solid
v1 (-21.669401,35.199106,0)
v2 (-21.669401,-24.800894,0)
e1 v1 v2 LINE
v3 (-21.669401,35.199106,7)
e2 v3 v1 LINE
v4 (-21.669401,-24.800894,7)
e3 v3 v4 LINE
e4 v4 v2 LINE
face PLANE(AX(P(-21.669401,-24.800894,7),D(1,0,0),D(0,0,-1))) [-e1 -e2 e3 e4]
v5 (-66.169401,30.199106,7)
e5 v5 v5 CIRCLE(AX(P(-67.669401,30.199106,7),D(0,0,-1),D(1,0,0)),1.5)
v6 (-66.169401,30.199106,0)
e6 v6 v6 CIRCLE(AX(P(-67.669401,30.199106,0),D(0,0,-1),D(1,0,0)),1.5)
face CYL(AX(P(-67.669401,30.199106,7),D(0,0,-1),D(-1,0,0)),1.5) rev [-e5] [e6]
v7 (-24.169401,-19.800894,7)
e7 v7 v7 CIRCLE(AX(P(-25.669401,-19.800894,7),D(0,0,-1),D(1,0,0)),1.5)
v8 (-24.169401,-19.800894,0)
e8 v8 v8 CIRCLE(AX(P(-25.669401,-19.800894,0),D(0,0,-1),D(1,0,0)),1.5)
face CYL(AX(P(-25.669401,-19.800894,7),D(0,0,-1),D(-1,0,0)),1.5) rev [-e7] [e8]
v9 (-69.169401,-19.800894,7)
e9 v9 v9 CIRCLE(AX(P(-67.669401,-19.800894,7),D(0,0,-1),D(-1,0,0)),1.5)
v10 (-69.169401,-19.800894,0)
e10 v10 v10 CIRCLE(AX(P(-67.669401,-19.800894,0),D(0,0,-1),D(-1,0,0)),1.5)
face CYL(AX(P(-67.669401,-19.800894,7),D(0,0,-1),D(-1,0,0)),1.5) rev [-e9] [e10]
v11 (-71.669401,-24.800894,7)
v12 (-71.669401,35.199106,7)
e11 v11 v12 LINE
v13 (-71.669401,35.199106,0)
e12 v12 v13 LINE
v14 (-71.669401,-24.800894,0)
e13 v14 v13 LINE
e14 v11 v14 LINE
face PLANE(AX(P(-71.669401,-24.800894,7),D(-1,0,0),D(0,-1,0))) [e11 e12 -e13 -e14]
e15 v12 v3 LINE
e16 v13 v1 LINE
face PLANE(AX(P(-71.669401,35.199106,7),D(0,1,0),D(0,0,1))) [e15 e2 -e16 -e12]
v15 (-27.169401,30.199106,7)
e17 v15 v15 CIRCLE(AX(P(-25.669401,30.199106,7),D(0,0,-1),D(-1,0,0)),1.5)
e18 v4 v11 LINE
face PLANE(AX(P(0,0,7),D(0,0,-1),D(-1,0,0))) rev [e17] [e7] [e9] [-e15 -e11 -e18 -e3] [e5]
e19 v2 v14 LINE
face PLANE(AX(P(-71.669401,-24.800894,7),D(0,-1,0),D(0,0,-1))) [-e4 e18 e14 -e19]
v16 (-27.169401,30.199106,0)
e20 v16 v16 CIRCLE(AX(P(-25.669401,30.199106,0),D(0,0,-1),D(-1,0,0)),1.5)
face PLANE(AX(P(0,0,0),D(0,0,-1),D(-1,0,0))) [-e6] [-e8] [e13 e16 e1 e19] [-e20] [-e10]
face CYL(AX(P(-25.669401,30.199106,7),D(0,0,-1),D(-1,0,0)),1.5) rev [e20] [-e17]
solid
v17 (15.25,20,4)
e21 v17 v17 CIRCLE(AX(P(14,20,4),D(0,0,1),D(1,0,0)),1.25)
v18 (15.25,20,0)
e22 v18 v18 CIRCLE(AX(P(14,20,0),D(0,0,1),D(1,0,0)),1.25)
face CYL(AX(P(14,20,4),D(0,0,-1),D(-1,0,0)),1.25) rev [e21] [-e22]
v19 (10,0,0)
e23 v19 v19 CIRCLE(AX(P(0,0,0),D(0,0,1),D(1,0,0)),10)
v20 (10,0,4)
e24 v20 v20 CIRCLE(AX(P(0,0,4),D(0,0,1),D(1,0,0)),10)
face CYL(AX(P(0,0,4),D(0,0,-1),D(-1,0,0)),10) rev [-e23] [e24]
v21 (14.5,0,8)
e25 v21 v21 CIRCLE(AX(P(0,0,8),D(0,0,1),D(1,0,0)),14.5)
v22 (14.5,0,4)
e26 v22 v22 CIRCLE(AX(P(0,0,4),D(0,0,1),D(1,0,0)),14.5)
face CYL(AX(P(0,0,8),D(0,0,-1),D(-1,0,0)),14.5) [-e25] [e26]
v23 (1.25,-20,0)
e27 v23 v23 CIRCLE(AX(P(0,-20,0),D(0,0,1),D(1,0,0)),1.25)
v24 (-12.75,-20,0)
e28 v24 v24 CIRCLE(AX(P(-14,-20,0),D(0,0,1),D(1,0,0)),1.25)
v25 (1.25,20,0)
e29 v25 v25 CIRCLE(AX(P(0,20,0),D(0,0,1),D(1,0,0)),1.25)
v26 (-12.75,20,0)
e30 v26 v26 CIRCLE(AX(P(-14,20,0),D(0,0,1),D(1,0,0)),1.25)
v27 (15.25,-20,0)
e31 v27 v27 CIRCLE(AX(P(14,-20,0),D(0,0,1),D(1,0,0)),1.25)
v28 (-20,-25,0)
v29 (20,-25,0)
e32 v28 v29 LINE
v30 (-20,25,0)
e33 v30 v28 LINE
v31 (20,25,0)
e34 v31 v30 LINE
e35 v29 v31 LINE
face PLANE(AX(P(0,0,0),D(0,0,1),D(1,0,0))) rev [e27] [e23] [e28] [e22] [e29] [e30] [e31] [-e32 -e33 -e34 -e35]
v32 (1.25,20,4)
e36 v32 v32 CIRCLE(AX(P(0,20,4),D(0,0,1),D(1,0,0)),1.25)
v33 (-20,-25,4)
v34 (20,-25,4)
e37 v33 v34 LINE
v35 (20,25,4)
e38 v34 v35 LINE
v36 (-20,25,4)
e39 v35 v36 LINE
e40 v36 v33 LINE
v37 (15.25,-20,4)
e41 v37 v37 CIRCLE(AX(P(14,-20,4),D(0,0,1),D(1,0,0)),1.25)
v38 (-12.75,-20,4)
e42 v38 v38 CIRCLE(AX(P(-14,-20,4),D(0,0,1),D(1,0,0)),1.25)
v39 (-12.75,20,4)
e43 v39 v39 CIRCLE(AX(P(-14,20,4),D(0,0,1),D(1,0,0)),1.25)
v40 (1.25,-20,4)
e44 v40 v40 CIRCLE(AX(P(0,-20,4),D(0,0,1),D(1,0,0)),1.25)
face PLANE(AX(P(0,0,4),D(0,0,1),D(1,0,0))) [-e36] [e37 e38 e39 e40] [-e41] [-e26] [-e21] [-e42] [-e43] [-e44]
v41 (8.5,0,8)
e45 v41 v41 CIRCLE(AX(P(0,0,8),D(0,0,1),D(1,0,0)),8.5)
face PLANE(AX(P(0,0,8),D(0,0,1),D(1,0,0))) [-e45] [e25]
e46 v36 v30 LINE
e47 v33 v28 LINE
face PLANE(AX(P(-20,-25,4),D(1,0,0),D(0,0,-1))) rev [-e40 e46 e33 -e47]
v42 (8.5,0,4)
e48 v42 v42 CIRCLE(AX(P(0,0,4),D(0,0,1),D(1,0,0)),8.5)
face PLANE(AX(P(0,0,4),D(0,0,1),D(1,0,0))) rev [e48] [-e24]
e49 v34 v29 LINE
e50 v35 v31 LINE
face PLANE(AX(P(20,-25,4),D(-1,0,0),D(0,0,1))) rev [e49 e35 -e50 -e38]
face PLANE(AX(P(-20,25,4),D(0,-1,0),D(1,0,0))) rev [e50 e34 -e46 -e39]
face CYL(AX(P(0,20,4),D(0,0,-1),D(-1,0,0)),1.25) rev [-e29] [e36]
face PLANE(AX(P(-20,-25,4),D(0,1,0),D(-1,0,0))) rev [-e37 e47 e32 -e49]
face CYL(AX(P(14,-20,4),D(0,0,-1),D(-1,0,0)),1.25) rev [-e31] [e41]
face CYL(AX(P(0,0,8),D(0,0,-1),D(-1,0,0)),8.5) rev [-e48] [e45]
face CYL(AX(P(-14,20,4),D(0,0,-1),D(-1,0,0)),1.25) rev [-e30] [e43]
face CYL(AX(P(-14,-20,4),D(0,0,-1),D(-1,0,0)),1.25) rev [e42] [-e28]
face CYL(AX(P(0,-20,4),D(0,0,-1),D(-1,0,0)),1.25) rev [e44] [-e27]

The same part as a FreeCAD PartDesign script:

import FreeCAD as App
import Part
import Sketcher
from FreeCAD import Vector
Q = App.Units.Quantity

doc = App.newDocument("Part")
body = doc.addObject("PartDesign::Body", "Body")

sketch1 = body.newObject("Sketcher::SketchObject", "Sketch")
sketch1.AttachmentSupport = (doc.getObject("XY_Plane"), [""])
sketch1.MapMode = "FlatFace"
sketch1.addGeometry([
    Part.LineSegment(Vector(-20, -25, 0), Vector(20, -25, 0)),
    Part.LineSegment(Vector(20, -25, 0), Vector(20, 25, 0)),
    Part.LineSegment(Vector(20, 25, 0), Vector(-20, 25, 0)),
    Part.LineSegment(Vector(-20, 25, 0), Vector(-20, -25, 0)),
    Part.Circle(Vector(14, -20, 0), Vector(0, 0, 1), 1.2),
    Part.Circle(Vector(14, 20, 0), Vector(0, 0, 1), 1.2),
    Part.Circle(Vector(0, -20, 0), Vector(0, 0, 1), 1.2),
    Part.Circle(Vector(-14, -20, 0), Vector(0, 0, 1), 1.2),
    Part.Circle(Vector(0, 0, 0), Vector(0, 0, 1), 10),
    Part.Circle(Vector(0, 20, 0), Vector(0, 0, 1), 1.2),
    Part.Circle(Vector(-14, 20, 0), Vector(0, 0, 1), 1.2),
], False)
sketch1.addConstraint([
    Sketcher.Constraint("Coincident", 0, 2, 1, 1),
    Sketcher.Constraint("Coincident", 1, 2, 2, 1),
    Sketcher.Constraint("Coincident", 2, 2, 3, 1),
    Sketcher.Constraint("Coincident", 3, 2, 0, 1),
    Sketcher.Constraint("Horizontal", 0),
    Sketcher.Constraint("Vertical", 1),
    Sketcher.Constraint("Horizontal", 2),
    Sketcher.Constraint("Vertical", 3),
    Sketcher.Constraint("Coincident", 8, 3, -1, 1),
    Sketcher.Constraint("Equal", 4, 5),
    Sketcher.Constraint("Equal", 5, 6),
    Sketcher.Constraint("Equal", 6, 7),
    Sketcher.Constraint("Equal", 7, 9),
    Sketcher.Constraint("Equal", 9, 10),
    Sketcher.Constraint("Symmetric", 5, 3, 7, 3, -1, 1),
    Sketcher.Constraint("Symmetric", 6, 3, 9, 3, -1, 1),
    Sketcher.Constraint("Symmetric", 4, 3, 10, 3, -1, 1),
    Sketcher.Constraint("Symmetric", 0, 2, 2, 2, -1, 1),
    Sketcher.Constraint("Symmetric", 4, 3, 7, 3, -2),
    Sketcher.Constraint("PointOnObject", 6, 3, -2),
    Sketcher.Constraint("Horizontal", 4, 3, 6, 3),
    Sketcher.Constraint("Diameter", 8, Q("20 mm")),
    Sketcher.Constraint("Diameter", 4, Q("2.5 mm")),
    Sketcher.Constraint("DistanceX", 0, 1, 0, 2, Q("40 mm")),
    Sketcher.Constraint("DistanceY", 1, 1, 1, 2, Q("50 mm")),
    Sketcher.Constraint("DistanceX", -1, 1, 4, 3, Q("14 mm")),
    Sketcher.Constraint("DistanceY", 4, 3, -1, 1, Q("20 mm")),
])
pad1 = body.newObject("PartDesign::Pad", "Pad")
pad1.Profile = sketch1
pad1.Length = 4

sketch2 = body.newObject("Sketcher::SketchObject", "Sketch001")
sketch2.AttachmentSupport = (doc.getObject("XY_Plane"), [""])
sketch2.MapMode = "FlatFace"
sketch2.AttachmentOffset = App.Placement(Vector(0, 0, 4), App.Rotation())
sketch2.addGeometry([
    Part.Circle(Vector(0, 0, 0), Vector(0, 0, 1), 14),
    Part.Circle(Vector(0, 0, 0), Vector(0, 0, 1), 8),
], False)
sketch2.addConstraint([
    Sketcher.Constraint("Coincident", 0, 3, -1, 1),
    Sketcher.Constraint("Coincident", 1, 3, -1, 1),
    Sketcher.Constraint("Diameter", 0, Q("29 mm")),
    Sketcher.Constraint("Diameter", 1, Q("17 mm")),
])
pad2 = body.newObject("PartDesign::Pad", "Pad001")
pad2.Profile = sketch2
pad2.Length = 4
body2 = doc.addObject("PartDesign::Body", "Body001")

sketch3 = body2.newObject("Sketcher::SketchObject", "Sketch002")
sketch3.AttachmentSupport = (doc.getObject("XY_Plane001"), [""])
sketch3.MapMode = "FlatFace"
sketch3.addGeometry([
    Part.LineSegment(Vector(-71.7, -24.8, 0), Vector(-71.7, 35.2, 0)),
    Part.LineSegment(Vector(-71.7, 35.2, 0), Vector(-21.7, 35.2, 0)),
    Part.LineSegment(Vector(-21.7, 35.2, 0), Vector(-21.7, -24.8, 0)),
    Part.LineSegment(Vector(-21.7, -24.8, 0), Vector(-71.7, -24.8, 0)),
    Part.Circle(Vector(-67.7, 30.2, 0), Vector(0, 0, 1), 1.5),
    Part.Circle(Vector(-25.7, 30.2, 0), Vector(0, 0, 1), 1.5),
    Part.Circle(Vector(-67.7, -19.8, 0), Vector(0, 0, 1), 1.5),
    Part.Circle(Vector(-25.7, -19.8, 0), Vector(0, 0, 1), 1.5),
], False)
sketch3.addConstraint([
    Sketcher.Constraint("Coincident", 0, 2, 1, 1),
    Sketcher.Constraint("Coincident", 1, 2, 2, 1),
    Sketcher.Constraint("Coincident", 2, 2, 3, 1),
    Sketcher.Constraint("Coincident", 3, 2, 0, 1),
    Sketcher.Constraint("Vertical", 0),
    Sketcher.Constraint("Horizontal", 1),
    Sketcher.Constraint("Vertical", 2),
    Sketcher.Constraint("Horizontal", 3),
    Sketcher.Constraint("Equal", 4, 5),
    Sketcher.Constraint("Equal", 5, 6),
    Sketcher.Constraint("Equal", 6, 7),
    Sketcher.Constraint("Horizontal", 4, 3, 5, 3),
    Sketcher.Constraint("Horizontal", 6, 3, 7, 3),
    Sketcher.Constraint("Vertical", 4, 3, 6, 3),
    Sketcher.Constraint("Vertical", 5, 3, 7, 3),
    Sketcher.Constraint("Diameter", 4, Q("3 mm")),
    Sketcher.Constraint("DistanceX", 1, 1, 1, 2, Q("50 mm")),
    Sketcher.Constraint("DistanceY", 0, 1, 0, 2, Q("60 mm")),
    Sketcher.Constraint("DistanceX", 4, 3, 5, 3, Q("42 mm")),
    Sketcher.Constraint("DistanceY", 6, 3, 4, 3, Q("50 mm")),
    Sketcher.Constraint("DistanceX", 0, 2, 4, 3, Q("4 mm")),
    Sketcher.Constraint("DistanceY", 4, 3, 0, 2, Q("5 mm")),
    Sketcher.Constraint("DistanceX", 4, 3, -1, 1, Q("67.669401 mm")),
    Sketcher.Constraint("DistanceY", -1, 1, 4, 3, Q("30.199106 mm")),
])
pad3 = body2.newObject("PartDesign::Pad", "Pad002")
pad3.Profile = sketch3
pad3.Length = 7

doc.recompute()
